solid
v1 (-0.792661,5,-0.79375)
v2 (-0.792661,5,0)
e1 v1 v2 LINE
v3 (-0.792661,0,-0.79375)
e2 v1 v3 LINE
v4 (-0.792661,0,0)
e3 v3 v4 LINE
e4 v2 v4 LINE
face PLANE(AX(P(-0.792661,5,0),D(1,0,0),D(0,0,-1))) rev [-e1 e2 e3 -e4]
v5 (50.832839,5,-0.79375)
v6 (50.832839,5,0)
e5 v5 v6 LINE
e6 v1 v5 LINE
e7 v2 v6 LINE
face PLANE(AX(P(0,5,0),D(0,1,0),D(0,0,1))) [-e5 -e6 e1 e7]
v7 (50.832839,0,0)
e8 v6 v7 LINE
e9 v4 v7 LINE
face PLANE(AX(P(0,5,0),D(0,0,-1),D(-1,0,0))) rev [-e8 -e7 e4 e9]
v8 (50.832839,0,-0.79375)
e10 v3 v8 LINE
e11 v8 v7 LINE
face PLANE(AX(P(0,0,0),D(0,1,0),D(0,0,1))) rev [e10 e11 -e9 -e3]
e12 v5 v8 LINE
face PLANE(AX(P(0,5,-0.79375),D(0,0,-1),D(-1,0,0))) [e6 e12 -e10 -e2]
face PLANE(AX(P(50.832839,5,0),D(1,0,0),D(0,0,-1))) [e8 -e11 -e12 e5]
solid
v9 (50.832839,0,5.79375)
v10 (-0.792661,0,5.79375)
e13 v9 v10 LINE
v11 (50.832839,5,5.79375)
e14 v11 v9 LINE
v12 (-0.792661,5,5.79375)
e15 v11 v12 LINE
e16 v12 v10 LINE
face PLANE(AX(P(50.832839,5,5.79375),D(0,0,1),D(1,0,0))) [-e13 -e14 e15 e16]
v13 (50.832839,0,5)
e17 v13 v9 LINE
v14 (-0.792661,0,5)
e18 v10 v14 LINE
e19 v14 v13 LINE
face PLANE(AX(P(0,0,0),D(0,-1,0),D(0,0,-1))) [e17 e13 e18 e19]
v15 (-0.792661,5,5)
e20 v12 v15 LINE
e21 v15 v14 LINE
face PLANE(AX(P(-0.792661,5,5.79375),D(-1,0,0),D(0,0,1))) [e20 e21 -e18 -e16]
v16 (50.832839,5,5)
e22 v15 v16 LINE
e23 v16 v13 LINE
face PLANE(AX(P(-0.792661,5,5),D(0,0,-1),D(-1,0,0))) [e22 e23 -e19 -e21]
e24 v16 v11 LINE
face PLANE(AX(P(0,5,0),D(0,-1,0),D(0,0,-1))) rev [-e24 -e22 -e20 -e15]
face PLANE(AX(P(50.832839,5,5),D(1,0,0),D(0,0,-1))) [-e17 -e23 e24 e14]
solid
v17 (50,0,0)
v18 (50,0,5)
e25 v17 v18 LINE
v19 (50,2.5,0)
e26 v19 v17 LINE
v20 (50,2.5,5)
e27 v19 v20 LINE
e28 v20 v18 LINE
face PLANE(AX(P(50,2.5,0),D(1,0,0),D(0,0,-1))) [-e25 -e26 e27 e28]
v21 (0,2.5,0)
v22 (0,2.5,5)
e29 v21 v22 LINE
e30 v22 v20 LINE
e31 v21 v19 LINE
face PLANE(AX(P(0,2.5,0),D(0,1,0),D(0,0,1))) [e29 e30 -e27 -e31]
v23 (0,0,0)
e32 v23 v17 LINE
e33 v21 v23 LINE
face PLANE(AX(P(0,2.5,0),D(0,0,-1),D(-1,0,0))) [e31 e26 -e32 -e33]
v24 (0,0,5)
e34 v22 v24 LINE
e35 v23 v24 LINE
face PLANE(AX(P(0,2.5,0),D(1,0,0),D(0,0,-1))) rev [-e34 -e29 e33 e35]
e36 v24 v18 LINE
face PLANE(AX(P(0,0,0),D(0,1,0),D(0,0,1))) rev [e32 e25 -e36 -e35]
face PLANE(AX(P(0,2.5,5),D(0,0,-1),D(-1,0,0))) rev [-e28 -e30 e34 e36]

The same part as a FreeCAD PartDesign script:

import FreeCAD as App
import Part
import Sketcher


def add_polygon(sketch, points):
    """Adds a closed chain of lines whose ends are joined by coincident constraints."""
    first, n = sketch.GeometryCount, len(points)
    for a, b in zip(points, points[1:] + points[:1]):
        sketch.addGeometry(Part.LineSegment(App.Vector(*a, 0), App.Vector(*b, 0)), False)
    for i in range(n):
        sketch.addConstraint(Sketcher.Constraint("Coincident", first + i, 2, first + (i + 1) % n, 1))

doc = App.newDocument("Part")
body = doc.addObject("PartDesign::Body", "Body")

# Sketch on XZ plane
sketch1 = body.newObject("Sketcher::SketchObject", "Sketch")
sketch1.AttachmentSupport = (doc.getObject("XZ_Plane"), [""])
sketch1.MapMode = "FlatFace"
add_polygon(sketch1, [(0, 0), (0, 5), (50, 5), (50, 0)])  # lines 0-3
sketch1.addConstraint(Sketcher.Constraint("Vertical", 0))
sketch1.addConstraint(Sketcher.Constraint("Horizontal", 1))
sketch1.addConstraint(Sketcher.Constraint("Vertical", 2))
sketch1.addConstraint(Sketcher.Constraint("Horizontal", 3))
sketch1.addConstraint(Sketcher.Constraint("Coincident", 3, 2, -1, 1))
sketch1.addConstraint(Sketcher.Constraint("DistanceX", 1, 1, 1, 2, 50.0))
sketch1.addConstraint(Sketcher.Constraint("DistanceY", 0, 1, 0, 2, 5.0))
pad1 = body.newObject("PartDesign::Pad", "Pad")
pad1.Profile = sketch1
pad1.Length = 2.5
pad1.Reversed = True
body2 = doc.addObject("PartDesign::Body", "Body001")

# Sketch on XZ plane
sketch2 = body2.newObject("Sketcher::SketchObject", "Sketch001")
sketch2.AttachmentSupport = (doc.getObject("XZ_Plane001"), [""])
sketch2.MapMode = "FlatFace"
add_polygon(sketch2, [(-0.792661, 0), (50.832839, 0), (50.832839, -0.79375), (-0.792661, -0.79375)])  # lines 0-3
sketch2.addConstraint(Sketcher.Constraint("Horizontal", 0))
sketch2.addConstraint(Sketcher.Constraint("Vertical", 1))
sketch2.addConstraint(Sketcher.Constraint("Horizontal", 2))
sketch2.addConstraint(Sketcher.Constraint("Vertical", 3))
sketch2.addConstraint(Sketcher.Constraint("PointOnObject", 0, 2, -1))
sketch2.addConstraint(Sketcher.Constraint("DistanceX", 0, 1, 0, 2, 51.6255))
sketch2.addConstraint(Sketcher.Constraint("DistanceY", 1, 2, 1, 1, 0.79375))
sketch2.addConstraint(Sketcher.Constraint("DistanceX", -1, 1, 0, 2, 50.832839))
pad2 = body2.newObject("PartDesign::Pad", "Pad001")
pad2.Profile = sketch2
pad2.Length = 5
pad2.Reversed = True
body3 = doc.addObject("PartDesign::Body", "Body002")

# Sketch on XZ plane
sketch3 = body3.newObject("Sketcher::SketchObject", "Sketch002")
sketch3.AttachmentSupport = (doc.getObject("XZ_Plane002"), [""])
sketch3.MapMode = "FlatFace"
add_polygon(sketch3, [(-0.792661, 5), (-0.792661, 5.79375), (50.832839, 5.79375), (50.832839, 5)])  # lines 0-3
sketch3.addConstraint(Sketcher.Constraint("Vertical", 0))
sketch3.addConstraint(Sketcher.Constraint("Horizontal", 1))
sketch3.addConstraint(Sketcher.Constraint("Vertical", 2))
sketch3.addConstraint(Sketcher.Constraint("Horizontal", 3))
sketch3.addConstraint(Sketcher.Constraint("DistanceY", -1, 1, 2, 2, 5.0))
sketch3.addConstraint(Sketcher.Constraint("DistanceX", 1, 1, 1, 2, 51.6255))
sketch3.addConstraint(Sketcher.Constraint("DistanceY", 0, 1, 0, 2, 0.79375))
sketch3.addConstraint(Sketcher.Constraint("DistanceX", 0, 2, -1, 1, 0.792661))
pad3 = body3.newObject("PartDesign::Pad", "Pad002")
pad3.Profile = sketch3
pad3.Length = 5
pad3.Reversed = True

doc.recompute()
